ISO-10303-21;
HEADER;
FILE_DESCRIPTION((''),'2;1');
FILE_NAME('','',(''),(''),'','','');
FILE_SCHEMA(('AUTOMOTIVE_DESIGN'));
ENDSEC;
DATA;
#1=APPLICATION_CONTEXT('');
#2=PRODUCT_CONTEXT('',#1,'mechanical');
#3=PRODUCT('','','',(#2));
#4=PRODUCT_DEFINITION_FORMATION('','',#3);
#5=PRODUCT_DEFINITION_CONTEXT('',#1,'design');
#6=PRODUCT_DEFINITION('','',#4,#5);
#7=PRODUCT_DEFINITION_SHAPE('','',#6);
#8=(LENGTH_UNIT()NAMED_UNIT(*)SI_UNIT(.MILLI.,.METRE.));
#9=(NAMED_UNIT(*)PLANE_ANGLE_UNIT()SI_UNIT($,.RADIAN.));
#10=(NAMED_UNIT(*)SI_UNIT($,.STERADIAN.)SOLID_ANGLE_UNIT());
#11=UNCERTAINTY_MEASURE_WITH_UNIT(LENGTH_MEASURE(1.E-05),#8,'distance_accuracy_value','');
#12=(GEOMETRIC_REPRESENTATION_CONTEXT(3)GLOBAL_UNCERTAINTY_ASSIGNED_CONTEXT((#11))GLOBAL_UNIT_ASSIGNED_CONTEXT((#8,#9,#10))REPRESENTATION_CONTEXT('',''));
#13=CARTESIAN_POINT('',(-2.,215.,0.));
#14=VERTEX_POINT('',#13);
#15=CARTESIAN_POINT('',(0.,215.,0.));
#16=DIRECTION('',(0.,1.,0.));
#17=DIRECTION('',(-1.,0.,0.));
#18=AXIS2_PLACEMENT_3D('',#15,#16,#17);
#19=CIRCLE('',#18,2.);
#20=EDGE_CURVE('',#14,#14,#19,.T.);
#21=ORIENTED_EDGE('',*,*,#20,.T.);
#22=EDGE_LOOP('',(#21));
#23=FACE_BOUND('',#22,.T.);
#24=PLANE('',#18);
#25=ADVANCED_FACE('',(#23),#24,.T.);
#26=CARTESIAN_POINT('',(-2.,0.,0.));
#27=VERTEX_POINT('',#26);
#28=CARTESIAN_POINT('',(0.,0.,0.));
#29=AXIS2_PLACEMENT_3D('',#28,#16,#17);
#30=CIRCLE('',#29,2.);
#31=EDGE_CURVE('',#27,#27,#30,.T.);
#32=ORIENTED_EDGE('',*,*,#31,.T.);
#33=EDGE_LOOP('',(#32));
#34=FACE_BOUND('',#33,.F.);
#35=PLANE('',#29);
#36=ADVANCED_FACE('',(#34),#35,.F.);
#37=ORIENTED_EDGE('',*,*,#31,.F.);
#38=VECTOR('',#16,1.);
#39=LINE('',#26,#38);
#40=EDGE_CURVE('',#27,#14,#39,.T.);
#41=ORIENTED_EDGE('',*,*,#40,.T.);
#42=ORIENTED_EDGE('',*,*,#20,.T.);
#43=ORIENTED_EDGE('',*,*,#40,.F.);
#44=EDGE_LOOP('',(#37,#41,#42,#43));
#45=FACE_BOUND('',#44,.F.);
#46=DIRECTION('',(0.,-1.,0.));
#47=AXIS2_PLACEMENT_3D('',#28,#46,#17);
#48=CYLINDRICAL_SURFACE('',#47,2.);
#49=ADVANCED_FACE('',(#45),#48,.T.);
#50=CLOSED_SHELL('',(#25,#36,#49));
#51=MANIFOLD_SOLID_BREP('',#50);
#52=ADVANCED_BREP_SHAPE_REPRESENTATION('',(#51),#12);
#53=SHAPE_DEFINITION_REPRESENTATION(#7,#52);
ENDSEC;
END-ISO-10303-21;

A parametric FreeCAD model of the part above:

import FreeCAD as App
import Part
import Sketcher
from FreeCAD import Vector

doc = App.newDocument("Part")
params = doc.addObject("Spreadsheet::Sheet", "Params")
for row, (alias, value) in enumerate([
    ("sketch1_diameter", "4 mm"),
    ("pad1_length", "215 mm"),
], start=1):
    params.set(f"A{row}", alias)
    params.set(f"B{row}", "=" + value)
    params.setAlias(f"B{row}", alias)

body = doc.addObject("PartDesign::Body", "Body")

# Sketch on XZ plane
sketch1 = body.newObject("Sketcher::SketchObject", "Sketch")
sketch1.AttachmentSupport = (doc.getObject("XZ_Plane"), [""])
sketch1.MapMode = "FlatFace"
sketch1.addGeometry(Part.Circle(Vector(0, 0, 0), Vector(0, 0, 1), 2), False)
sketch1.addConstraint(Sketcher.Constraint("Coincident", 0, 3, -1, 1))
sketch1.addConstraint(Sketcher.Constraint("Diameter", 0, 4.0))
sketch1.setExpression("Constraints[1]", "Params.sketch1_diameter")
pad1 = body.newObject("PartDesign::Pad", "Pad")
pad1.Profile = sketch1
pad1.setExpression("Length", "Params.pad1_length")
pad1.Reversed = True

doc.recompute()
